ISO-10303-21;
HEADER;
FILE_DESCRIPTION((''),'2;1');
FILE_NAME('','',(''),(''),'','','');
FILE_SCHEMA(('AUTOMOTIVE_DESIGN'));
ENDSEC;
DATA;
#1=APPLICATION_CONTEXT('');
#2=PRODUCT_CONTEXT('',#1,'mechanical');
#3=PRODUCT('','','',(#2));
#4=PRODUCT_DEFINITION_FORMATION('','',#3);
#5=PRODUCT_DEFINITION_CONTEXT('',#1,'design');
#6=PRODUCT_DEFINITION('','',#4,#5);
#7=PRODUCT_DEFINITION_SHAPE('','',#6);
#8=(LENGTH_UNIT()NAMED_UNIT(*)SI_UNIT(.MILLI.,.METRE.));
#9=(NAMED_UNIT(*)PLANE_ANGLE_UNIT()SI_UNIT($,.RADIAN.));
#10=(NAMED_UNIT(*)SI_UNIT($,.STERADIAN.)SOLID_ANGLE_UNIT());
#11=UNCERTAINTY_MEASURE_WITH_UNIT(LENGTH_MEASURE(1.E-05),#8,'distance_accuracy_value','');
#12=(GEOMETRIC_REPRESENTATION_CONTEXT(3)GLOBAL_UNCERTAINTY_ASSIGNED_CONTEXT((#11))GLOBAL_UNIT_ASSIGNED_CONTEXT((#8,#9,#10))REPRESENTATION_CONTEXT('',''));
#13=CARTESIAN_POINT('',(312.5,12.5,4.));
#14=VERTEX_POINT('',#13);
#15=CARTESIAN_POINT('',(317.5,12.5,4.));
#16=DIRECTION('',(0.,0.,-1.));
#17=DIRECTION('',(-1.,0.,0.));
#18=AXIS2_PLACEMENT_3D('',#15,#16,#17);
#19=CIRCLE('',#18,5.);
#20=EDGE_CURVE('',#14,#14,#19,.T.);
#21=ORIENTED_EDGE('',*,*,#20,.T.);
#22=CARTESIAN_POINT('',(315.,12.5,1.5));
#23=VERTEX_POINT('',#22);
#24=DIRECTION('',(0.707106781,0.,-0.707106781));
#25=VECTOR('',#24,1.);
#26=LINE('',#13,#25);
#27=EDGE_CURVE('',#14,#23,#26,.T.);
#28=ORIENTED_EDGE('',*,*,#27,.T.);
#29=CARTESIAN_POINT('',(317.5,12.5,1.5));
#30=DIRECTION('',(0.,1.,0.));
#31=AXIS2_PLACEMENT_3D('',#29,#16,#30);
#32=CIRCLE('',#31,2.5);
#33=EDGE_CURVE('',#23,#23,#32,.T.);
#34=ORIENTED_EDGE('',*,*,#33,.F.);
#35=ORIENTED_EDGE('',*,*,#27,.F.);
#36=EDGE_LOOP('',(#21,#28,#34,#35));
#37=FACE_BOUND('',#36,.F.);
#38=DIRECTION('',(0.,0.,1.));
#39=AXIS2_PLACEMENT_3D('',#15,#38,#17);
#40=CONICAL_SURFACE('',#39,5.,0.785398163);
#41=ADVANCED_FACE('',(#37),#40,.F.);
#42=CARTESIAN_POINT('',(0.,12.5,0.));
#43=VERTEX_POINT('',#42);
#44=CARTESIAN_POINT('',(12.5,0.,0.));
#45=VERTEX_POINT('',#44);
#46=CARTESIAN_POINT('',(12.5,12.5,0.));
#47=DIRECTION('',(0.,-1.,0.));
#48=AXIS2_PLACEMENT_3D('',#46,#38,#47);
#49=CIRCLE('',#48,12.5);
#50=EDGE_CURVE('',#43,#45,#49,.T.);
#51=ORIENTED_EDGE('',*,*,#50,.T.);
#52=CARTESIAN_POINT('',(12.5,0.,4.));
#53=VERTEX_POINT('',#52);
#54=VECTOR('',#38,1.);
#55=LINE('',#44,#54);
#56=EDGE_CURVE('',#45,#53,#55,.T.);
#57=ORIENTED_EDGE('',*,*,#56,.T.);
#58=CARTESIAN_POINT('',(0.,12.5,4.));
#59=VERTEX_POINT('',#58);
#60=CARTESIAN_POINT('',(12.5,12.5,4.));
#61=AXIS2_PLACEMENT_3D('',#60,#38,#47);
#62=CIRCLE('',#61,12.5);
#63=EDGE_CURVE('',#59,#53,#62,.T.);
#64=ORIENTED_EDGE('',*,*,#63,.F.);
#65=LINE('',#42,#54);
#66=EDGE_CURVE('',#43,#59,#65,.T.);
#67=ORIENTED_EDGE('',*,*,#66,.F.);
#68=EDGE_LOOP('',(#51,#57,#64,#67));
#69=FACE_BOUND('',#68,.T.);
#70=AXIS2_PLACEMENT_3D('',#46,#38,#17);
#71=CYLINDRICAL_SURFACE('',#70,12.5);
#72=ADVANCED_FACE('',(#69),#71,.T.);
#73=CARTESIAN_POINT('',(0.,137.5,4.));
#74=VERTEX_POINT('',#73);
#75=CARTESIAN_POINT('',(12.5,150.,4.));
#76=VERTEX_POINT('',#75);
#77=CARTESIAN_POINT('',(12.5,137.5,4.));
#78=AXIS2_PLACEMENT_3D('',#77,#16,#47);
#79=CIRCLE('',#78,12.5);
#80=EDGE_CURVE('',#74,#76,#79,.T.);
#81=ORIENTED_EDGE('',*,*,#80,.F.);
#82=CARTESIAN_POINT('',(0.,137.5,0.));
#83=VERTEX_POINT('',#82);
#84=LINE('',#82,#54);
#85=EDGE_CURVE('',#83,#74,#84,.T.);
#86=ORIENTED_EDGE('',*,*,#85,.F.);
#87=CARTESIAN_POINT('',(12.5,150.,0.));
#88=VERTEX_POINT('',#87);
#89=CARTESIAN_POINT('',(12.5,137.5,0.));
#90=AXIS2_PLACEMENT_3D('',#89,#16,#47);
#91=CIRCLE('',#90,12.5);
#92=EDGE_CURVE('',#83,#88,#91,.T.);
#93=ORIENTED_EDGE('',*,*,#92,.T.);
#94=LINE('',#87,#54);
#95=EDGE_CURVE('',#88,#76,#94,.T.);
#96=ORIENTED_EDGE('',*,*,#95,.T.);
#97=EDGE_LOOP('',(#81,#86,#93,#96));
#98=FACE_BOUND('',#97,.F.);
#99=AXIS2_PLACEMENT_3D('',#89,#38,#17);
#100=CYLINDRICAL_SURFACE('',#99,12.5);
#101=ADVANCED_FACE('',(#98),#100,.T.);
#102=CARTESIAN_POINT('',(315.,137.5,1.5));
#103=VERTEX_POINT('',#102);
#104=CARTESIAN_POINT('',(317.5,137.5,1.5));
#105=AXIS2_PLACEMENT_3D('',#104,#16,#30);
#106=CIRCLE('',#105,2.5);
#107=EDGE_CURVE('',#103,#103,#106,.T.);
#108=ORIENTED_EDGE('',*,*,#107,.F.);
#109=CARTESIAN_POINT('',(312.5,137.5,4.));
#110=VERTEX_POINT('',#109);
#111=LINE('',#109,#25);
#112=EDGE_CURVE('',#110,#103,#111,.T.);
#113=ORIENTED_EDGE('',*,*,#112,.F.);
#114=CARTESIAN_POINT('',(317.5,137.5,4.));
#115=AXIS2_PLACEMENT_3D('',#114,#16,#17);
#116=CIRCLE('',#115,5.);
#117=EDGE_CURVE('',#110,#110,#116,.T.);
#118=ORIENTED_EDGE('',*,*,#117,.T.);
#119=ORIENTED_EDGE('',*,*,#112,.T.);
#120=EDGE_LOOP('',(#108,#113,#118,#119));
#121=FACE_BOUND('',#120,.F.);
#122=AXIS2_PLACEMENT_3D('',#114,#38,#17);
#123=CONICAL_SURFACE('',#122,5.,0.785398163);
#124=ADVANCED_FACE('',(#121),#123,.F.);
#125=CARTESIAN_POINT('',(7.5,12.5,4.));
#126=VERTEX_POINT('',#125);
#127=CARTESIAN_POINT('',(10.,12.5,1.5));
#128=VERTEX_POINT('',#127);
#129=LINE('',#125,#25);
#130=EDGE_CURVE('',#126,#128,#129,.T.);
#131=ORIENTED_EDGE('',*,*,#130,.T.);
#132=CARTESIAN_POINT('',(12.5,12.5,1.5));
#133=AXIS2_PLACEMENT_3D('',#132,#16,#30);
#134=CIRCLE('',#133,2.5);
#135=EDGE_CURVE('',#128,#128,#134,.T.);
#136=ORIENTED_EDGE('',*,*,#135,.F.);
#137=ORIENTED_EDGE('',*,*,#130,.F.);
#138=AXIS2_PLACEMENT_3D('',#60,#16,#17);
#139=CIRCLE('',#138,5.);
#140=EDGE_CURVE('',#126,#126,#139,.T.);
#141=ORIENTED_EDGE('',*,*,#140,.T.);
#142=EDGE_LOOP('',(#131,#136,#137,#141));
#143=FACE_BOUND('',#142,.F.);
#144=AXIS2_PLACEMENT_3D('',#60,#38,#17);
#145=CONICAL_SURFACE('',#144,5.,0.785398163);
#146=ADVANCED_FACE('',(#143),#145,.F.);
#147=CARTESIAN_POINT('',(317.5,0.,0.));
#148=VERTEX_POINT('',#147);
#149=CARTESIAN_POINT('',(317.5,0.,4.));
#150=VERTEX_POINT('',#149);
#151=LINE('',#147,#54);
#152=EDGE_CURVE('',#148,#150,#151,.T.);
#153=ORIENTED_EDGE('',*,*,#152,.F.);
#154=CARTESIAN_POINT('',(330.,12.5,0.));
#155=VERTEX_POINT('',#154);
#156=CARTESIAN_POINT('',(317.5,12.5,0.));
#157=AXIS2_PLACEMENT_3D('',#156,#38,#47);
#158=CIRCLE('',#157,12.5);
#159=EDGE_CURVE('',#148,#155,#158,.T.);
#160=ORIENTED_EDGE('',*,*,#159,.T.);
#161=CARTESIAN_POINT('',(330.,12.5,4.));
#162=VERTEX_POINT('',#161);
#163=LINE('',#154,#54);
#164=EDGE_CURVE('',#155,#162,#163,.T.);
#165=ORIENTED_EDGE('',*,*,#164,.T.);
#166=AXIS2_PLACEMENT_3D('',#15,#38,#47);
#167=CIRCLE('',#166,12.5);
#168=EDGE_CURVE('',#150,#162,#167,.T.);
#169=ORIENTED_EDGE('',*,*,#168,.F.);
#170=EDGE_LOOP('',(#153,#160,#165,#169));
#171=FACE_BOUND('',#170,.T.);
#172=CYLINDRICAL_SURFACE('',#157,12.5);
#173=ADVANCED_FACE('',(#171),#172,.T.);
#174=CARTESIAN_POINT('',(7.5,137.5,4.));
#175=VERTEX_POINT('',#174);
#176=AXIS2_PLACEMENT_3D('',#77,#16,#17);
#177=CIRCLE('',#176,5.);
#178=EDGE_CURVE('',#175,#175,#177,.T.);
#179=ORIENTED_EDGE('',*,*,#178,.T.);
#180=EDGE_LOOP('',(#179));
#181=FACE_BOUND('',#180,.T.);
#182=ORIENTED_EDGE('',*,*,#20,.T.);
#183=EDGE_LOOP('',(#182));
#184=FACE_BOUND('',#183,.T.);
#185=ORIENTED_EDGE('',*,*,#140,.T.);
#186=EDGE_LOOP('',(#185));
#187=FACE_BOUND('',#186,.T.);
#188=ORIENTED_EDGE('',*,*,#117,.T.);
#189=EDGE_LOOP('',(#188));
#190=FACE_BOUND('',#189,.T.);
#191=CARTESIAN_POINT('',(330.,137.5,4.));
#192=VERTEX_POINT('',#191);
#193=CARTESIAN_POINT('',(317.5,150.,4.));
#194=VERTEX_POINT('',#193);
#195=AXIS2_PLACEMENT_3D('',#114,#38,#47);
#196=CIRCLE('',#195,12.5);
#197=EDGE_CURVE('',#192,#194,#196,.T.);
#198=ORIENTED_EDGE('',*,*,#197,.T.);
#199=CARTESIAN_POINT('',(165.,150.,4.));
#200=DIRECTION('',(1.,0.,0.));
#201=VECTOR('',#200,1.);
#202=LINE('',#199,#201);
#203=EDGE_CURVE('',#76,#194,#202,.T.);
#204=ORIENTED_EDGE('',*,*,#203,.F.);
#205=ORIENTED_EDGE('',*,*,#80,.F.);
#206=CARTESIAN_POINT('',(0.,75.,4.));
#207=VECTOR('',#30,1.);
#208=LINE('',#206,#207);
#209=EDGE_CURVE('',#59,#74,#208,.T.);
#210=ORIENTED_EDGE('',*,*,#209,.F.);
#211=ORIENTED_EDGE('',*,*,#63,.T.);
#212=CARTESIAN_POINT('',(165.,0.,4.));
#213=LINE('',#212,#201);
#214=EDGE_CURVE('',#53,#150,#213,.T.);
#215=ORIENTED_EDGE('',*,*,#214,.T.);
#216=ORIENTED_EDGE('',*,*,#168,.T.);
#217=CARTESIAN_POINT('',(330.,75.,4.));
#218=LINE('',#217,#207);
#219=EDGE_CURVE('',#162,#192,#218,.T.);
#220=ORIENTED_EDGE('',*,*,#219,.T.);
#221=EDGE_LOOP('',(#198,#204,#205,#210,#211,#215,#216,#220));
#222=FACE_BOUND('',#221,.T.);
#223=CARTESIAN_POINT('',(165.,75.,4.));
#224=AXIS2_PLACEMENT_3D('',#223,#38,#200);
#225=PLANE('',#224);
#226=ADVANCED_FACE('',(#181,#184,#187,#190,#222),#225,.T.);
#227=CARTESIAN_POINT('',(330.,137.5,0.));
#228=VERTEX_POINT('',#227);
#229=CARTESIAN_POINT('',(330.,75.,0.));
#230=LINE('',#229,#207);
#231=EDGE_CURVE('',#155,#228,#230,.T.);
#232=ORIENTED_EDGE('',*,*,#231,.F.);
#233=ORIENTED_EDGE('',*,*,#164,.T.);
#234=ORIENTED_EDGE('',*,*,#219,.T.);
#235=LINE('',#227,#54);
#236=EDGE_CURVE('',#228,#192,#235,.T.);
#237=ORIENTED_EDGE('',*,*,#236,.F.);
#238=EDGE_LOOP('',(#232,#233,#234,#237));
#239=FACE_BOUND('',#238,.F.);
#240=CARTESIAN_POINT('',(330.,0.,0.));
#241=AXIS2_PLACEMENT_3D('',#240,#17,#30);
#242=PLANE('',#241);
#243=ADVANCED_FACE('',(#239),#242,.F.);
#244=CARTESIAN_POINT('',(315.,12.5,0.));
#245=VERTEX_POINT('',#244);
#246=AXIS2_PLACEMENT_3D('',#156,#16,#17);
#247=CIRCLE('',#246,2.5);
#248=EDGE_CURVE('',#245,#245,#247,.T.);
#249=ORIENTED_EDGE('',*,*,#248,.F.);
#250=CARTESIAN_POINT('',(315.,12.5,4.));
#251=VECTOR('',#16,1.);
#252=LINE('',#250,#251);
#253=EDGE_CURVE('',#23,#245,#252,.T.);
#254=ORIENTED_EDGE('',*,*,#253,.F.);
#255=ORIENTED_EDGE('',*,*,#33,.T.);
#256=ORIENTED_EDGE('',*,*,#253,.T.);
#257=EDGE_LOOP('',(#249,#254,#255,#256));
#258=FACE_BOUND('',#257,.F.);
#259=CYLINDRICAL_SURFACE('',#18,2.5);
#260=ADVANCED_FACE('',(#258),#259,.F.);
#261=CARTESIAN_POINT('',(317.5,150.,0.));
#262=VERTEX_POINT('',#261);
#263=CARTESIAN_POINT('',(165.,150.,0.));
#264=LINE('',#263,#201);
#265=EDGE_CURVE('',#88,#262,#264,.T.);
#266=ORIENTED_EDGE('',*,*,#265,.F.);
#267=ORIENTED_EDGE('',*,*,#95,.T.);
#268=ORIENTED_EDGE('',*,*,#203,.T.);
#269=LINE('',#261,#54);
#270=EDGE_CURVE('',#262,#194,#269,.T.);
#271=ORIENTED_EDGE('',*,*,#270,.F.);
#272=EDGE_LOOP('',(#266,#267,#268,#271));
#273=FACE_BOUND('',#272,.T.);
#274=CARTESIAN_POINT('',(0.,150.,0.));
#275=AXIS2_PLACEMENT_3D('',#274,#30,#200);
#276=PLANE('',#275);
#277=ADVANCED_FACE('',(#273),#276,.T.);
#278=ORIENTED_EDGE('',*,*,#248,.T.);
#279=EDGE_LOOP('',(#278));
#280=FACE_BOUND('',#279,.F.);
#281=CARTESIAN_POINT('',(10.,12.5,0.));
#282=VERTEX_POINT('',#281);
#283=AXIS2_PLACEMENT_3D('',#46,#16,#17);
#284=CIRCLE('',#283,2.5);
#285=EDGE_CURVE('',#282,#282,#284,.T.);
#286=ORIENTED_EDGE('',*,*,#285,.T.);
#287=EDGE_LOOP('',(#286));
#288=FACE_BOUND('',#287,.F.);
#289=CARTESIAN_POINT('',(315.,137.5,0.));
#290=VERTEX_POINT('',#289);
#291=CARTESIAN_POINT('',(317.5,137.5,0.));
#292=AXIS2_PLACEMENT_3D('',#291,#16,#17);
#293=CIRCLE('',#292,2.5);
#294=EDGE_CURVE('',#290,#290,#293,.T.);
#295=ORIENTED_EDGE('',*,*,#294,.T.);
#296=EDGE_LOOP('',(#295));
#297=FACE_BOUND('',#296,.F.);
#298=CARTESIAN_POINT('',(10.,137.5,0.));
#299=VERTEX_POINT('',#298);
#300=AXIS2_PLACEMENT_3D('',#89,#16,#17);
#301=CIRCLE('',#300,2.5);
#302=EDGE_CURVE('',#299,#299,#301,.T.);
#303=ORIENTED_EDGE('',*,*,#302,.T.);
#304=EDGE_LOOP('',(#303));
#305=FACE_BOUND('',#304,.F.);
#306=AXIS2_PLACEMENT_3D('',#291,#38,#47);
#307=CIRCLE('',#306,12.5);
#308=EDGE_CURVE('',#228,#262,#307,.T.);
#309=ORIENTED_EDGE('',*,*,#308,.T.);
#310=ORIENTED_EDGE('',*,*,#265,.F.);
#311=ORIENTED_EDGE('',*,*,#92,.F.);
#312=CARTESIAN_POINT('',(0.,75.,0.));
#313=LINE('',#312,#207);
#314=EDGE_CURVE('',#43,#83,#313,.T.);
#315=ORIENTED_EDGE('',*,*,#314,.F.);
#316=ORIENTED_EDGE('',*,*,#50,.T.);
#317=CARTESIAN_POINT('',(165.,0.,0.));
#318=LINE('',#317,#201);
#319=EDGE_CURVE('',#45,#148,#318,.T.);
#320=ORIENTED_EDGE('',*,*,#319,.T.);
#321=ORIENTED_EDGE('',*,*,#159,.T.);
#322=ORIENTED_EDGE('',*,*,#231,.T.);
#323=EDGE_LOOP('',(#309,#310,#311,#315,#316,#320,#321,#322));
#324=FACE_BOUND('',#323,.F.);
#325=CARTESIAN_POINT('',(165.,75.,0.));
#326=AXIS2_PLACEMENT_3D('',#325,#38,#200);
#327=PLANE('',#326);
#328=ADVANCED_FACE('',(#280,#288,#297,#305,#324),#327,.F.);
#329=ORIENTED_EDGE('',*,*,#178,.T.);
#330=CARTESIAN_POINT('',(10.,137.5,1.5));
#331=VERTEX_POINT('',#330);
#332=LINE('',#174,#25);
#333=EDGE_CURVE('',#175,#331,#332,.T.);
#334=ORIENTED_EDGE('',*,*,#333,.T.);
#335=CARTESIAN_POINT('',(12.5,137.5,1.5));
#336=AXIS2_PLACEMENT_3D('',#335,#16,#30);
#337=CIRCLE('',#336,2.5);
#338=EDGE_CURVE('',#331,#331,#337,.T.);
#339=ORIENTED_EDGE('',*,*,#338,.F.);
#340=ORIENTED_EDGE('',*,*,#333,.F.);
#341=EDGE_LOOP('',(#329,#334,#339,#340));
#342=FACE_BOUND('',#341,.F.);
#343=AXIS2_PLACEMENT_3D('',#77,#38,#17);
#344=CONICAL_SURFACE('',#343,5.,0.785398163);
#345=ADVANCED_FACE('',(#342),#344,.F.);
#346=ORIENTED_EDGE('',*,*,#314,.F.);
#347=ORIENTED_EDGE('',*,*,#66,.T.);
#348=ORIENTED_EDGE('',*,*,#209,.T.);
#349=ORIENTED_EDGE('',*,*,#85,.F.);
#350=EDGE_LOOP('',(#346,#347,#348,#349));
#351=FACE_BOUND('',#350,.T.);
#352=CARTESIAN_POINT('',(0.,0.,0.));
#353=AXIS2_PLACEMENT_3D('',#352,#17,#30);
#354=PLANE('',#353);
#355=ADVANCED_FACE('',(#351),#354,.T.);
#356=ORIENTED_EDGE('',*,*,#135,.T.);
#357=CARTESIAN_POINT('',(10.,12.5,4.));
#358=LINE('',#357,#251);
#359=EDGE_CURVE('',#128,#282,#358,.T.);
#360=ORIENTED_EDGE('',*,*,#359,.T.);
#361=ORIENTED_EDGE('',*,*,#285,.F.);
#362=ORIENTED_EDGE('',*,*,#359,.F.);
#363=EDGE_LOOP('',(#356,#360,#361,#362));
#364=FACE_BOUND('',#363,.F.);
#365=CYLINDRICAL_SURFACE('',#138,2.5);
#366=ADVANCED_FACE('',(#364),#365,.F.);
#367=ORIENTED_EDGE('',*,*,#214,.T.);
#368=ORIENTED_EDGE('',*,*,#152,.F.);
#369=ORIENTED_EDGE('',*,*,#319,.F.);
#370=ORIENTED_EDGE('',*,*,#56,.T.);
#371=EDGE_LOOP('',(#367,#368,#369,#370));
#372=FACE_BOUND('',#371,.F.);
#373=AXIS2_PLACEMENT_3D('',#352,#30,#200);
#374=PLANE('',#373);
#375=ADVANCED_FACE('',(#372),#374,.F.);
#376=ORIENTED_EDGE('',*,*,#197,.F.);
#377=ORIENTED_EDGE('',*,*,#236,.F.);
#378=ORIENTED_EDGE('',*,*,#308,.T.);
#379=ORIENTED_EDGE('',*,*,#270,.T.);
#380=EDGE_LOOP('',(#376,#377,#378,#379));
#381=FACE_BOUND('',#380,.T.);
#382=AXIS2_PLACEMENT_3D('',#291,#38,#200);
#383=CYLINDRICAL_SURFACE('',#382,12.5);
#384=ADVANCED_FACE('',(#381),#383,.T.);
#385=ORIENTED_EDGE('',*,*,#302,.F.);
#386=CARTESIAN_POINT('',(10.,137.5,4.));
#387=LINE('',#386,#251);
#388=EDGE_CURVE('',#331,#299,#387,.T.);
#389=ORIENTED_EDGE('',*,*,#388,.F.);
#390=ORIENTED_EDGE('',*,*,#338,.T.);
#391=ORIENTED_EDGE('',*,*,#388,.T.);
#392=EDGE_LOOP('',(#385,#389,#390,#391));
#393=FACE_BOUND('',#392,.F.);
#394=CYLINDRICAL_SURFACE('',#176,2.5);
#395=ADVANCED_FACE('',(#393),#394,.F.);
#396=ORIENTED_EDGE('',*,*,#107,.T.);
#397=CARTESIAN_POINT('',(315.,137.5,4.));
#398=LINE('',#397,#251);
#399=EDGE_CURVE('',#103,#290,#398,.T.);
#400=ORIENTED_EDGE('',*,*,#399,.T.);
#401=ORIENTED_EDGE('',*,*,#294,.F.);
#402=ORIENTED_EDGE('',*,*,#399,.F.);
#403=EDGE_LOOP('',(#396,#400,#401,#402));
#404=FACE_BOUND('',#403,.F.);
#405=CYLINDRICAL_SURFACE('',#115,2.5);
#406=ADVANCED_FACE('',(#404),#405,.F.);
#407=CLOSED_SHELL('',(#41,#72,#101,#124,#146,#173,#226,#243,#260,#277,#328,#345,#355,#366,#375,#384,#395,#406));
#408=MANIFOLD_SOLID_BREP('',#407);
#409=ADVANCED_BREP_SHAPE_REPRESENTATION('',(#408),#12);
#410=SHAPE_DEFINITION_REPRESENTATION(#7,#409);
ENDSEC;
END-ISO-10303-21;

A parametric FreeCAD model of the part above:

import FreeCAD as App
import Part
import Sketcher


def edges_at(feature, points):
    """Names of the edges that pass closest to the given points."""
    edges = feature.Shape.Edges
    near = lambda p: min(range(len(edges)), key=lambda i: edges[i].distToShape(Part.Vertex(*p))[0])
    return sorted({f"Edge{near(p) + 1}" for p in points})

doc = App.newDocument("Part")
body = doc.addObject("PartDesign::Body", "Body")

sketch1 = body.newObject("Sketcher::SketchObject", "Sketch")
sketch1.AttachmentSupport = (doc.getObject("XY_Plane"), [""])
sketch1.MapMode = "FlatFace"
sketch1.addGeometry([
    Part.LineSegment(App.Vector(0, 150, 0), App.Vector(0, 0, 0)),
    Part.LineSegment(App.Vector(0, 0, 0), App.Vector(330, 0, 0)),
    Part.LineSegment(App.Vector(330, 0, 0), App.Vector(330, 150, 0)),
    Part.LineSegment(App.Vector(330, 150, 0), App.Vector(0, 150, 0)),
], False)
sketch1.addConstraint([
    Sketcher.Constraint("Coincident", 0, 2, 1, 1),
    Sketcher.Constraint("Coincident", 1, 2, 2, 1),
    Sketcher.Constraint("Coincident", 2, 2, 3, 1),
    Sketcher.Constraint("Coincident", 3, 2, 0, 1),
    Sketcher.Constraint("Vertical", 0),
    Sketcher.Constraint("Horizontal", 1),
    Sketcher.Constraint("Vertical", 2),
    Sketcher.Constraint("Horizontal", 3),
    Sketcher.Constraint("Coincident", 0, 2, -1, 1),
    Sketcher.Constraint("DistanceX", 1, 1, 1, 2, 330.0),
    Sketcher.Constraint("DistanceY", 0, 2, 0, 1, 150.0),
])
pad1 = body.newObject("PartDesign::Pad", "Pad")
pad1.Profile = sketch1
pad1.Length = 4
doc.recompute()

fillet = body.newObject("PartDesign::Fillet", "Fillet")
fillet.Base = (pad1, edges_at(pad1, [
    (330, 0, 2),
    (330, 150, 2),
    (0, 150, 2),
    (0, 0, 2),
]))
fillet.Radius = 12.5

sketch2 = body.newObject("Sketcher::SketchObject", "Sketch001")
sketch2.AttachmentSupport = (doc.getObject("XY_Plane"), [""])
sketch2.MapMode = "FlatFace"
sketch2.AttachmentOffset = App.Placement(App.Vector(0, 0, 4), App.Rotation())
sketch2.addGeometry([
    Part.Circle(App.Vector(12.5, 137.5, 0), App.Vector(0, 0, 1), 2.5),
    Part.Circle(App.Vector(317.5, 137.5, 0), App.Vector(0, 0, 1), 2.5),
    Part.Circle(App.Vector(317.5, 12.5, 0), App.Vector(0, 0, 1), 2.5),
    Part.Circle(App.Vector(12.5, 12.5, 0), App.Vector(0, 0, 1), 2.5),
], False)
sketch2.addConstraint([
    Sketcher.Constraint("Equal", 0, 1),
    Sketcher.Constraint("Equal", 1, 2),
    Sketcher.Constraint("Equal", 2, 3),
    Sketcher.Constraint("Horizontal", 0, 3, 1, 3),
    Sketcher.Constraint("Horizontal", 2, 3, 3, 3),
    Sketcher.Constraint("Vertical", 1, 3, 2, 3),
    Sketcher.Constraint("Vertical", 0, 3, 3, 3),
    Sketcher.Constraint("Diameter", 0, 5.0),
    Sketcher.Constraint("DistanceX", 0, 3, 1, 3, 305.0),
    Sketcher.Constraint("DistanceY", 2, 3, 1, 3, 125.0),
    Sketcher.Constraint("DistanceX", -1, 1, 0, 3, 12.5),
    Sketcher.Constraint("DistanceY", -1, 1, 0, 3, 137.5),
])
doc.recompute()
hole = body.newObject("PartDesign::Hole", "Hole")
hole.Profile = sketch2
hole.ThreadType = "None"
hole.Diameter = 5
hole.DepthType = "ThroughAll"
hole.HoleCutType = "Countersink"
hole.HoleCutDiameter = 10
hole.HoleCutCountersinkAngle = 90

doc.recompute()
